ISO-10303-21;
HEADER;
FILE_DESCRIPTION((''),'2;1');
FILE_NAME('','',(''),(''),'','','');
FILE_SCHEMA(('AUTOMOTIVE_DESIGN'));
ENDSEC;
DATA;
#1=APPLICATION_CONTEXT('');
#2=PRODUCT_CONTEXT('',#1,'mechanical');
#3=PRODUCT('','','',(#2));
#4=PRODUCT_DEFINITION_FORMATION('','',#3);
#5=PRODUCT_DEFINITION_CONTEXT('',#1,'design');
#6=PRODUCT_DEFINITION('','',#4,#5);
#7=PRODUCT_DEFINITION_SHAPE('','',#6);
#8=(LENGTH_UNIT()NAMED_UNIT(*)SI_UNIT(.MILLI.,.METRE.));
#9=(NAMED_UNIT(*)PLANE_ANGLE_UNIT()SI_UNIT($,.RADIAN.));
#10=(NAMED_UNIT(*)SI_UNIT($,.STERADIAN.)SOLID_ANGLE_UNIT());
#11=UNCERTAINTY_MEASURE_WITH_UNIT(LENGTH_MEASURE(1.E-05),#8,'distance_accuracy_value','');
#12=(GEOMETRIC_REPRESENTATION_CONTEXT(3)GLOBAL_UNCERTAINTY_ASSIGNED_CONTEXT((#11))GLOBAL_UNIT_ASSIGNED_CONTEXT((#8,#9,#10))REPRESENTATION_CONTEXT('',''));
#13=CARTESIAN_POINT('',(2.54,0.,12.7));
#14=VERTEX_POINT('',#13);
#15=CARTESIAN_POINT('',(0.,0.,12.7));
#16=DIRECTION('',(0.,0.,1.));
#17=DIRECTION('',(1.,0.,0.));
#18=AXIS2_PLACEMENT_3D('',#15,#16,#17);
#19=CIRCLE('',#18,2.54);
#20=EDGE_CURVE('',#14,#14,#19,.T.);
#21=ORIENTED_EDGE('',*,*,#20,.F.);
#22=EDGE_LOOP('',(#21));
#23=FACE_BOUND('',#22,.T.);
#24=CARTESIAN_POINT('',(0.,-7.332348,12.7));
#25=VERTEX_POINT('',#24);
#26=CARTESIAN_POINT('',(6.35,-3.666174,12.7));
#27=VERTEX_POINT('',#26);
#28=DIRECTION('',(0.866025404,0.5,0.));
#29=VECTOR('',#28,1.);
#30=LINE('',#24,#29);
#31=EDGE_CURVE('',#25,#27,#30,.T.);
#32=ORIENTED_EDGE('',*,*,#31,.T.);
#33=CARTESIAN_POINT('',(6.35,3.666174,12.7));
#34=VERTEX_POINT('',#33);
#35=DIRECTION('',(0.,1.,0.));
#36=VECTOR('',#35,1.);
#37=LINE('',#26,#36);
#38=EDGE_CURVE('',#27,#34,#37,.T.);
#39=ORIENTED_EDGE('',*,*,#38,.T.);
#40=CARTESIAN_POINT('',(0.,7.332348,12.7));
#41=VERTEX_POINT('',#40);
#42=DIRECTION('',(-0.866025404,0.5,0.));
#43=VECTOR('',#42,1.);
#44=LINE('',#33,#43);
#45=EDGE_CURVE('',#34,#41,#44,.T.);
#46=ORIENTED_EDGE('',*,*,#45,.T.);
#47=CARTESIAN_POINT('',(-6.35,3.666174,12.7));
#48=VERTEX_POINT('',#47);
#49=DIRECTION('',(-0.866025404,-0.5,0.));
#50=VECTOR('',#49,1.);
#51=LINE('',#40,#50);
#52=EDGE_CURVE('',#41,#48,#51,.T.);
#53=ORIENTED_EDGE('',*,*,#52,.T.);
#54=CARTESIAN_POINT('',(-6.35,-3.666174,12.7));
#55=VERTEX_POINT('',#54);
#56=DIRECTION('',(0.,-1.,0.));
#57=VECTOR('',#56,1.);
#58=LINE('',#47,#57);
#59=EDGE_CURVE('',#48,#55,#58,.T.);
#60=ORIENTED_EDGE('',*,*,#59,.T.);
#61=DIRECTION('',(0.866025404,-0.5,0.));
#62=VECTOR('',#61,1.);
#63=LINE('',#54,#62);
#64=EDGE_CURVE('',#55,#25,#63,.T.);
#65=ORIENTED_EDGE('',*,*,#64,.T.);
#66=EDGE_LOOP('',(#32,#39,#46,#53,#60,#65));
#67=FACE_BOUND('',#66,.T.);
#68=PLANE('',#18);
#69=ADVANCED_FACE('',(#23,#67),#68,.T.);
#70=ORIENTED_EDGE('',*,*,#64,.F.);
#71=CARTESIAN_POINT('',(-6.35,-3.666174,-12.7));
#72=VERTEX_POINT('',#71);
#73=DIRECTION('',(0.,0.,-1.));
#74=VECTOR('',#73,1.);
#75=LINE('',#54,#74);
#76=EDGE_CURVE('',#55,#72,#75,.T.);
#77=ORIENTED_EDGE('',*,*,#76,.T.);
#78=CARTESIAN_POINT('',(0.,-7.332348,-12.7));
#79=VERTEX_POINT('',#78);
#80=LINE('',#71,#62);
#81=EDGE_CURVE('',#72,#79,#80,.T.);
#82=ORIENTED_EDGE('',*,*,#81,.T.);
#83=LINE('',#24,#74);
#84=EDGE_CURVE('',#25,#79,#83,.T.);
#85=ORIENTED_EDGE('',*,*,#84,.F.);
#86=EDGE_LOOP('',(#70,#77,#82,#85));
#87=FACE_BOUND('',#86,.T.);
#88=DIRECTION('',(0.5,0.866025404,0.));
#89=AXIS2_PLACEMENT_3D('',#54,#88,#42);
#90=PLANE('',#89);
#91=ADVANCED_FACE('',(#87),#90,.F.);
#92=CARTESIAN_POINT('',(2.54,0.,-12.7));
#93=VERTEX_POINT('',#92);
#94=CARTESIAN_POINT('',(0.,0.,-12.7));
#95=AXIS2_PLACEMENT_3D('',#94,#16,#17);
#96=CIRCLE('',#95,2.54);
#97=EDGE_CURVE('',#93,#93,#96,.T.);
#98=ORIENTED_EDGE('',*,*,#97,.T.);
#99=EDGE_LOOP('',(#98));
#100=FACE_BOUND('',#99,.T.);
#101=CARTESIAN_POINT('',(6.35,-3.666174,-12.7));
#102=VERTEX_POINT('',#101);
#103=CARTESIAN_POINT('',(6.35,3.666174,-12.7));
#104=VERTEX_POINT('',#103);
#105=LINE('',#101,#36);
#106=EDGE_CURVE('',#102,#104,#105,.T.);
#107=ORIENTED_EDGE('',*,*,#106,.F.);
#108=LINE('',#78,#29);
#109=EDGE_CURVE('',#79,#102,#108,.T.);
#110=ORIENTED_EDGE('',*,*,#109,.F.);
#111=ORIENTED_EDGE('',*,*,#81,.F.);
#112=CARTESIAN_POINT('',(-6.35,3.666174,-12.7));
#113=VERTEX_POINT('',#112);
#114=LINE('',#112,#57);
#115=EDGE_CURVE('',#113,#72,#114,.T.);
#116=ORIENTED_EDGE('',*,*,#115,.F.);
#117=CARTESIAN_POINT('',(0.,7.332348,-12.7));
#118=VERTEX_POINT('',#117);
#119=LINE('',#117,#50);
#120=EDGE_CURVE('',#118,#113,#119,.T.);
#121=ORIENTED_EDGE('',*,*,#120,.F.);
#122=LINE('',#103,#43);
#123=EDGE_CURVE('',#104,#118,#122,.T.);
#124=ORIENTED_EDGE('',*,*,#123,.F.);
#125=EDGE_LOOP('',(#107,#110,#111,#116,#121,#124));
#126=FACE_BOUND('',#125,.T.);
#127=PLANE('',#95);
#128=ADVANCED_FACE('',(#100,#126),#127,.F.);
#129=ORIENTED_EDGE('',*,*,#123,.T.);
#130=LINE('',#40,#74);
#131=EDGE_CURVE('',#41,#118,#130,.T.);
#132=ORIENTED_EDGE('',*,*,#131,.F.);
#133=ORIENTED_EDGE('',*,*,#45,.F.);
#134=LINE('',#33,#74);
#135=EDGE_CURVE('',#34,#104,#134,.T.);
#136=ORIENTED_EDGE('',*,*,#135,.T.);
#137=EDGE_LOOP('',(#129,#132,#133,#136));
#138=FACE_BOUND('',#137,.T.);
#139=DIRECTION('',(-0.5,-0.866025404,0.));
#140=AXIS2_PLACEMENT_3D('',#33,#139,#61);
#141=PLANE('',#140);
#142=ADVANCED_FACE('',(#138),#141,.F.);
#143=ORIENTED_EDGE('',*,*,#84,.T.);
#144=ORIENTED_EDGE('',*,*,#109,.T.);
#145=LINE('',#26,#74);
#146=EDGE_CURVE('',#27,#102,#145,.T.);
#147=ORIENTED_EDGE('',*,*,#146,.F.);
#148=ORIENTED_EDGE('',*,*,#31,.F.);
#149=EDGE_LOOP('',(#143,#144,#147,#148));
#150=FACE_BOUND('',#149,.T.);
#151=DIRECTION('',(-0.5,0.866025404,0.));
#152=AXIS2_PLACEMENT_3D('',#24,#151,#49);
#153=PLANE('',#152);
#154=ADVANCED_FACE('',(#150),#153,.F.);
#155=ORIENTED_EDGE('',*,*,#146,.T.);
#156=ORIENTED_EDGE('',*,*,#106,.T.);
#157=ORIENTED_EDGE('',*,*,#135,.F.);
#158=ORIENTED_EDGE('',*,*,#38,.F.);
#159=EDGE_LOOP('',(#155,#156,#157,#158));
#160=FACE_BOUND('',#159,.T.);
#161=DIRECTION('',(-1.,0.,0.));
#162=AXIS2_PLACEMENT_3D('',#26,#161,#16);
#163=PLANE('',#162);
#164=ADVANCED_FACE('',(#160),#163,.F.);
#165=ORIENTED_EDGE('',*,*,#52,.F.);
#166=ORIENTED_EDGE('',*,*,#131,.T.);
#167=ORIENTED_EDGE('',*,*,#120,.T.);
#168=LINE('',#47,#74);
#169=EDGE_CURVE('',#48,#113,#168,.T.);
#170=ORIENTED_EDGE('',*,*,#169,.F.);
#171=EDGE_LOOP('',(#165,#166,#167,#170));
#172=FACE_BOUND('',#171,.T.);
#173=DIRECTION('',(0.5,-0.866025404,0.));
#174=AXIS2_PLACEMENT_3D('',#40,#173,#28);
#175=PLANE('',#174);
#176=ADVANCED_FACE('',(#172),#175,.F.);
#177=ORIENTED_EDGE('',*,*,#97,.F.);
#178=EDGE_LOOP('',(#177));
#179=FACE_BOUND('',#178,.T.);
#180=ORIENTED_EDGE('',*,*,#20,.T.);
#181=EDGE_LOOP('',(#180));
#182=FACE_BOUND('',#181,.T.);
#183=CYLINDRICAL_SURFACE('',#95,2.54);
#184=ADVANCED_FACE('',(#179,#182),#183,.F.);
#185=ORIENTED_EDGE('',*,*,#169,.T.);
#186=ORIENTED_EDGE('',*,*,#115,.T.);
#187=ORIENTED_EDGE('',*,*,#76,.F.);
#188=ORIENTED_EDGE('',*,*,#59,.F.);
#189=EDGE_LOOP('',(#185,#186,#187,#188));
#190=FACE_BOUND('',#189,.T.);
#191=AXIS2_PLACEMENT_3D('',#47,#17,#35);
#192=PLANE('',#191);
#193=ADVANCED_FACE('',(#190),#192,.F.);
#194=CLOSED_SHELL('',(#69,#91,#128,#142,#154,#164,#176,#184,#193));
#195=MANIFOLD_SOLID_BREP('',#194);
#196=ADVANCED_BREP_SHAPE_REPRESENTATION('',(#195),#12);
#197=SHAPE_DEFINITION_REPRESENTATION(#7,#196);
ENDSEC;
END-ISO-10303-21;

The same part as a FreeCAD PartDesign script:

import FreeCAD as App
import Part
import Sketcher
Q = App.Units.Quantity


def add_polygon(sketch, points):
    """Adds a closed chain of lines whose ends are joined by coincident constraints."""
    first, n = sketch.GeometryCount, len(points)
    for a, b in zip(points, points[1:] + points[:1]):
        sketch.addGeometry(Part.LineSegment(App.Vector(*a, 0), App.Vector(*b, 0)), False)
    for i in range(n):
        sketch.addConstraint(Sketcher.Constraint("Coincident", first + i, 2, first + (i + 1) % n, 1))

doc = App.newDocument("Part")
params = doc.addObject("Spreadsheet::Sheet", "Params")
for row, (alias, value) in enumerate([
    ("pad1_length", "1 in"),
    ("sketch2_diameter", "0.2 in"),
], start=1):
    params.set(f"A{row}", alias)
    params.set(f"B{row}", "=" + value)
    params.setAlias(f"B{row}", alias)

body = doc.addObject("PartDesign::Body", "Body")

# Sketch on XY plane
sketch1 = body.newObject("Sketcher::SketchObject", "Sketch")
sketch1.AttachmentSupport = (doc.getObject("XY_Plane"), [""])
sketch1.MapMode = "FlatFace"
add_polygon(sketch1, [(6, 4), (0, 7), (-6, 4), (-6, -4), (0, -7), (6, -4)])  # lines 0-5
sketch1.addConstraint(Sketcher.Constraint("Vertical", 2))
sketch1.addConstraint(Sketcher.Constraint("Vertical", 5))
sketch1.addConstraint(Sketcher.Constraint("Symmetric", 0, 2, 3, 2, -1, 1))
sketch1.addConstraint(Sketcher.Constraint("Symmetric", 1, 2, 4, 2, -1, 1))
sketch1.addConstraint(Sketcher.Constraint("PointOnObject", 0, 2, -2))
sketch1.addConstraint(Sketcher.Constraint("Parallel", 0, 3))
sketch1.addConstraint(Sketcher.Constraint("Horizontal", 2, 2, 4, 2))
sketch1.addConstraint(Sketcher.Constraint("Angle", 0, Q("150 deg")))
sketch1.addConstraint(Sketcher.Constraint("DistanceX", 2, 2, 4, 2, Q("0.5 in")))
sketch1.addConstraint(Sketcher.Constraint("DistanceY", 2, 2, 2, 1, 7.332348))
pad1 = body.newObject("PartDesign::Pad", "Pad")
pad1.Profile = sketch1
pad1.setExpression("Length", "Params.pad1_length")
pad1.Midplane = True

# Sketch on XY plane
sketch2 = body.newObject("Sketcher::SketchObject", "Sketch001")
sketch2.AttachmentSupport = (doc.getObject("XY_Plane"), [""])
sketch2.MapMode = "FlatFace"
sketch2.AttachmentOffset = App.Placement(App.Vector(0, 0, 0.5 * 25.4), App.Rotation())
sketch2.addGeometry(Part.Circle(App.Vector(0, 0, 0), App.Vector(0, 0, 1), 2.5), False)
sketch2.addConstraint(Sketcher.Constraint("Coincident", 0, 3, -1, 1))
sketch2.addConstraint(Sketcher.Constraint("Diameter", 0, Q("0.2 in")))
sketch2.setExpression("Constraints[1]", "Params.sketch2_diameter")
pocket1 = body.newObject("PartDesign::Pocket", "Pocket")
pocket1.Profile = sketch2
pocket1.Type = "ThroughAll"
pocket1.Midplane = True

doc.recompute()
